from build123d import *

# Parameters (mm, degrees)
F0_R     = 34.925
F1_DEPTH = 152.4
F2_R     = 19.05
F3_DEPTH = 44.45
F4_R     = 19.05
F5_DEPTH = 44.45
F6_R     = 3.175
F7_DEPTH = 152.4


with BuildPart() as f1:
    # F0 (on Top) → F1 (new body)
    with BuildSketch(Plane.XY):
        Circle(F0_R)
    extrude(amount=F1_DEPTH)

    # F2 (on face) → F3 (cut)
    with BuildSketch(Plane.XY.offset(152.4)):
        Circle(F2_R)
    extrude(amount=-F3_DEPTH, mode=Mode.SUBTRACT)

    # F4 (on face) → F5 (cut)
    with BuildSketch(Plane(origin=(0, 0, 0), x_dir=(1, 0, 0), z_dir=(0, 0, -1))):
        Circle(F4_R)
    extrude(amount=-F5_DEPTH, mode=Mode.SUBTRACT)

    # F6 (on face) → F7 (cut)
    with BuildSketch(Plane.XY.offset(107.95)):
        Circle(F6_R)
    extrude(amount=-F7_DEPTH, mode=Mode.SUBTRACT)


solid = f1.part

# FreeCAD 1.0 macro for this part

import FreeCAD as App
import Part
import Sketcher

V = App.Vector
Q = App.Units.Quantity

doc = App.newDocument("Part")
body = doc.addObject("PartDesign::Body", "Body")

sketch1 = body.newObject("Sketcher::SketchObject", "Sketch")
sketch1.AttachmentSupport = (doc.getObject("XY_Plane"), [""])
sketch1.MapMode = "FlatFace"
sketch1.addGeometry(Part.Circle(V(0, 0, 0), V(0, 0, 1), 35), False)
sketch1.addConstraint([
    Sketcher.Constraint("Coincident", 0, 3, -1, 1),
    Sketcher.Constraint("Diameter", 0, Q("2.75 in")),
])
pad1 = body.newObject("PartDesign::Pad", "Pad")
pad1.Profile = sketch1
pad1.Length = Q("6 in")

sketch2 = body.newObject("Sketcher::SketchObject", "Sketch001")
sketch2.AttachmentSupport = (doc.getObject("XY_Plane"), [""])
sketch2.MapMode = "FlatFace"
sketch2.AttachmentOffset = App.Placement(V(0, 0, 6 * 25.4), App.Rotation())
sketch2.addGeometry(Part.Circle(V(0, 0, 0), V(0, 0, 1), 19), False)
sketch2.addConstraint([
    Sketcher.Constraint("Coincident", 0, 3, -1, 1),
    Sketcher.Constraint("Diameter", 0, Q("1.5 in")),
])
pocket1 = body.newObject("PartDesign::Pocket", "Pocket")
pocket1.Profile = sketch2
pocket1.Length = Q("1.75 in")

sketch3 = body.newObject("Sketcher::SketchObject", "Sketch002")
sketch3.AttachmentSupport = (doc.getObject("XY_Plane"), [""])
sketch3.MapMode = "FlatFace"
sketch3.addGeometry(Part.Circle(V(0, 0, 0), V(0, 0, 1), 19), False)
sketch3.addConstraint([
    Sketcher.Constraint("Coincident", 0, 3, -1, 1),
    Sketcher.Constraint("Diameter", 0, Q("1.5 in")),
])
pocket2 = body.newObject("PartDesign::Pocket", "Pocket001")
pocket2.Profile = sketch3
pocket2.Length = Q("1.75 in")
pocket2.Reversed = True

sketch4 = body.newObject("Sketcher::SketchObject", "Sketch003")
sketch4.AttachmentSupport = (doc.getObject("XY_Plane"), [""])
sketch4.MapMode = "FlatFace"
sketch4.AttachmentOffset = App.Placement(V(0, 0, 4.25 * 25.4), App.Rotation())
sketch4.addGeometry(Part.Circle(V(0, 0, 0), V(0, 0, 1), 3.2), False)
sketch4.addConstraint([
    Sketcher.Constraint("Coincident", 0, 3, -1, 1),
    Sketcher.Constraint("Diameter", 0, Q("0.25 in")),
])
pocket3 = body.newObject("PartDesign::Pocket", "Pocket002")
pocket3.Profile = sketch4
pocket3.Length = Q("6 in")

doc.recompute()
